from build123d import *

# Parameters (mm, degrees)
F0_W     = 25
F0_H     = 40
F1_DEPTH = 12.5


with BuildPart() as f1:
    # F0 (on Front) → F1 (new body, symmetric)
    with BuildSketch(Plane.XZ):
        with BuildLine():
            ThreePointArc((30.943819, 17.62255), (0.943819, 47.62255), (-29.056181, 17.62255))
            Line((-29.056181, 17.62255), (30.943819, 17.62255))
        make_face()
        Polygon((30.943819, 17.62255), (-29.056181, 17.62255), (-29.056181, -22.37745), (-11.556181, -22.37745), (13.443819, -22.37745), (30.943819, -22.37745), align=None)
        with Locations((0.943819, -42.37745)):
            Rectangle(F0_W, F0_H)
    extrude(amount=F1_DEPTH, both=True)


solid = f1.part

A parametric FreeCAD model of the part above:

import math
import FreeCAD as App
import Part
import Sketcher

doc = App.newDocument("Part")
body = doc.addObject("PartDesign::Body", "Body")

# Sketch on XZ plane
sketch1 = body.newObject("Sketcher::SketchObject", "Sketch")
sketch1.AttachmentSupport = (doc.getObject("XZ_Plane"), [""])
sketch1.MapMode = "FlatFace"
sketch1.addGeometry([
    Part.ArcOfCircle(Part.Circle(App.Vector(1, 18, 0), App.Vector(0, 0, 1), 30), math.radians(0), math.radians(180)),  # 0
    Part.LineSegment(App.Vector(-29, 18, 0), App.Vector(-29, -22, 0)),  # 1
    Part.LineSegment(App.Vector(-29, -22, 0), App.Vector(-12, -22, 0)),  # 2
    Part.LineSegment(App.Vector(-12, -22, 0), App.Vector(-12, -62, 0)),  # 3
    Part.LineSegment(App.Vector(-12, -62, 0), App.Vector(13, -62, 0)),  # 4
    Part.LineSegment(App.Vector(13, -62, 0), App.Vector(13, -22, 0)),  # 5
    Part.LineSegment(App.Vector(13, -22, 0), App.Vector(31, -22, 0)),  # 6
    Part.LineSegment(App.Vector(31, -22, 0), App.Vector(31, 18, 0)),  # 7
], False)
sketch1.addConstraint([
    Sketcher.Constraint("Tangent", 0, 2, 1, 1),
    Sketcher.Constraint("Coincident", 1, 2, 2, 1),
    Sketcher.Constraint("Coincident", 2, 2, 3, 1),
    Sketcher.Constraint("Coincident", 3, 2, 4, 1),
    Sketcher.Constraint("Coincident", 4, 2, 5, 1),
    Sketcher.Constraint("Coincident", 5, 2, 6, 1),
    Sketcher.Constraint("Coincident", 6, 2, 7, 1),
    Sketcher.Constraint("Tangent", 7, 2, 0, 1),
    Sketcher.Constraint("Vertical", 1),
    Sketcher.Constraint("Horizontal", 2),
    Sketcher.Constraint("Vertical", 3),
    Sketcher.Constraint("Horizontal", 4),
    Sketcher.Constraint("Vertical", 5),
    Sketcher.Constraint("Horizontal", 6),
    Sketcher.Constraint("Vertical", 7),
    Sketcher.Constraint("Horizontal", 2, 2, 5, 2),
    Sketcher.Constraint("Equal", 2, 6),
    Sketcher.Constraint("Equal", 1, 3),
    Sketcher.Constraint("Radius", 0, 30.0),
    Sketcher.Constraint("DistanceX", 4, 1, 4, 2, 25.0),
    Sketcher.Constraint("DistanceY", 1, 2, 1, 1, 40.0),
    Sketcher.Constraint("DistanceX", -1, 1, 0, 3, 0.943819),
    Sketcher.Constraint("DistanceY", -1, 1, 0, 3, 17.62255),
])
pad1 = body.newObject("PartDesign::Pad", "Pad")
pad1.Profile = sketch1
pad1.Length = 25
pad1.Midplane = True

doc.recompute()
